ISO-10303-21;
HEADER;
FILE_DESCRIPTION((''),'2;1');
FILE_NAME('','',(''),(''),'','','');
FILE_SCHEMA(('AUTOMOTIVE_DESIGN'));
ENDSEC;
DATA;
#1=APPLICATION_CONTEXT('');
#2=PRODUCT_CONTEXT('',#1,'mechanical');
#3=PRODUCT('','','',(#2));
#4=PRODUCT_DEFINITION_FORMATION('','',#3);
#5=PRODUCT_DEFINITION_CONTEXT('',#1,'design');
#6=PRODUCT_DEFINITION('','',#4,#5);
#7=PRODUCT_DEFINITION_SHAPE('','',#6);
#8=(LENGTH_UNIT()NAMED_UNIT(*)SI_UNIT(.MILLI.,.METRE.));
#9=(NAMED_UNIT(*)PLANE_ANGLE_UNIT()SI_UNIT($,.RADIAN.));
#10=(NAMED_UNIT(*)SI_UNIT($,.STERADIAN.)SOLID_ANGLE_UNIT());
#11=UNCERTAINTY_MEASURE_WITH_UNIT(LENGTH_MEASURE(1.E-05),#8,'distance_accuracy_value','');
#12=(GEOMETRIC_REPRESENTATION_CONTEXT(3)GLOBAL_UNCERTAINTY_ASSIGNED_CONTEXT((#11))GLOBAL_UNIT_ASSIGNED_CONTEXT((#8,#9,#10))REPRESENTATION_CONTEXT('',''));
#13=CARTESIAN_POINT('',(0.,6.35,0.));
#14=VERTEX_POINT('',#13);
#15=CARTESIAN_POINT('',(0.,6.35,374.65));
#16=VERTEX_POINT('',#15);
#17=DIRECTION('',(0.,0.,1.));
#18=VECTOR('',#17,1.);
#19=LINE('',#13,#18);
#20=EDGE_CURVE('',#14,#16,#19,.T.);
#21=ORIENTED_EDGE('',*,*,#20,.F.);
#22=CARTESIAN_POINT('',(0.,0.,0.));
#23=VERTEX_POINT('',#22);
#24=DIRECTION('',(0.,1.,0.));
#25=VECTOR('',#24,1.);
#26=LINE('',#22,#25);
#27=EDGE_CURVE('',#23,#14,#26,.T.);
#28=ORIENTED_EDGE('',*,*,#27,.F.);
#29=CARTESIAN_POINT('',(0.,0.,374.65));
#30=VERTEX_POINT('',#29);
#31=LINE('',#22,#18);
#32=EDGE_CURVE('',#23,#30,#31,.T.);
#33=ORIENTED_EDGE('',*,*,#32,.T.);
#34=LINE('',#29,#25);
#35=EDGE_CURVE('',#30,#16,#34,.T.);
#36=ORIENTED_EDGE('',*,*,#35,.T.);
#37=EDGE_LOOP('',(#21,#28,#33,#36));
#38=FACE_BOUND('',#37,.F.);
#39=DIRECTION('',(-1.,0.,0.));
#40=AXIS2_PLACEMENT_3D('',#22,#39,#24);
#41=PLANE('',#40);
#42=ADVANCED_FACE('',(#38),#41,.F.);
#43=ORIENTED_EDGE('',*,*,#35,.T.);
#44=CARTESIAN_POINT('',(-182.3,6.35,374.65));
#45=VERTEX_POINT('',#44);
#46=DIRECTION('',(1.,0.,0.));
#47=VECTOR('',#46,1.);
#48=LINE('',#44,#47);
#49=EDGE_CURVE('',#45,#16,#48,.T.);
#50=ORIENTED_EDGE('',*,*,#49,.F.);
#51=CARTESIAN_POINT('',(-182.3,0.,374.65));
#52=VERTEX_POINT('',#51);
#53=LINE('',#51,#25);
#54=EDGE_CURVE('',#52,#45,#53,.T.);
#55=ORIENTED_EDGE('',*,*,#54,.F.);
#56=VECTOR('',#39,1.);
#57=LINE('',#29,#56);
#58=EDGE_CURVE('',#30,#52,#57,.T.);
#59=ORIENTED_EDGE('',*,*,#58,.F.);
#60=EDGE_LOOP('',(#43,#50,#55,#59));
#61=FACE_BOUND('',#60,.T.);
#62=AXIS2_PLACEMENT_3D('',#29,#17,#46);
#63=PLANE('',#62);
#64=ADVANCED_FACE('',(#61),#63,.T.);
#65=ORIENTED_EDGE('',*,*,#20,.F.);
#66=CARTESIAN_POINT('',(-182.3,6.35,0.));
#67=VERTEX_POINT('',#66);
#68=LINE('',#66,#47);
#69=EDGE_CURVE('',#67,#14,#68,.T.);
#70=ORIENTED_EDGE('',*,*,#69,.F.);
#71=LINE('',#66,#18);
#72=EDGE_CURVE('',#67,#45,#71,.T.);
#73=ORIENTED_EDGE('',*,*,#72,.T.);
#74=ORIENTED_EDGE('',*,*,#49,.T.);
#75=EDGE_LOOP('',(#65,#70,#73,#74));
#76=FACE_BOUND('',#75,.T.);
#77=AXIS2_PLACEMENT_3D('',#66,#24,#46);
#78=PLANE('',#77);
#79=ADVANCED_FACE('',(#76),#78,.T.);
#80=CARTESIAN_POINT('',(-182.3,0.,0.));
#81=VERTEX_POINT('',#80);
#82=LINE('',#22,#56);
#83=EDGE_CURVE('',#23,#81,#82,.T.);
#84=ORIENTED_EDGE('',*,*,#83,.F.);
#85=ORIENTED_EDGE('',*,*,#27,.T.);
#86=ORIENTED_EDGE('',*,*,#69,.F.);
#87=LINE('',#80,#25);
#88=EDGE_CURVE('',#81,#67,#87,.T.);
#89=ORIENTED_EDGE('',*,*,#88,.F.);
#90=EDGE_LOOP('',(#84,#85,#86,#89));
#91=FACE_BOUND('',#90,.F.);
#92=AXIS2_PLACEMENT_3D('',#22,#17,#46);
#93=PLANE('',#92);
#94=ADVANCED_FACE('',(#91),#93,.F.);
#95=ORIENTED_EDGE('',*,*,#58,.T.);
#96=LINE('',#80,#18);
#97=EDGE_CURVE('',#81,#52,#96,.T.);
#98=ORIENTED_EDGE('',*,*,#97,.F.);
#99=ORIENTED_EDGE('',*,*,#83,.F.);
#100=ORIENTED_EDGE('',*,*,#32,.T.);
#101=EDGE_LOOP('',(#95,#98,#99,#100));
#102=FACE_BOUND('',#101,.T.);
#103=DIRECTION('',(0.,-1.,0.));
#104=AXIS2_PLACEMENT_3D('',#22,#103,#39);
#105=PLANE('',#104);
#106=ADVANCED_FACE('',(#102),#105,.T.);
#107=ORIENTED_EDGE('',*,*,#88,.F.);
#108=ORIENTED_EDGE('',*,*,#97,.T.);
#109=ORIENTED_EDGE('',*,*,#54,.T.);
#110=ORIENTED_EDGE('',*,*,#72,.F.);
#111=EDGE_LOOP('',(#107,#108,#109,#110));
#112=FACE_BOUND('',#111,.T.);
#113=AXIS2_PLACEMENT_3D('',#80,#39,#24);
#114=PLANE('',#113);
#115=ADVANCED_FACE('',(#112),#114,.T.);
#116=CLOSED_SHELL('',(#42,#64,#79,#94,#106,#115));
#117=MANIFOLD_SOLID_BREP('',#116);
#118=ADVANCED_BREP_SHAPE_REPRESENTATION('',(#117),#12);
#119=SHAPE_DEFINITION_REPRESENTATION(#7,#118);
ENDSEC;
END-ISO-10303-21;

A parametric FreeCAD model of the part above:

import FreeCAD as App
import Part
import Sketcher
from FreeCAD import Vector
Q = App.Units.Quantity


def add_polygon(sketch, points):
    """Adds a closed chain of lines whose ends are joined by coincident constraints."""
    first, n = sketch.GeometryCount, len(points)
    for a, b in zip(points, points[1:] + points[:1]):
        sketch.addGeometry(Part.LineSegment(App.Vector(*a, 0), App.Vector(*b, 0)), False)
    for i in range(n):
        sketch.addConstraint(Sketcher.Constraint("Coincident", first + i, 2, first + (i + 1) % n, 1))

doc = App.newDocument("Part")
body = doc.addObject("PartDesign::Body", "Body")

sketch1 = body.newObject("Sketcher::SketchObject", "Sketch")
sketch1.AttachmentSupport = (doc.getObject("XY_Plane"), [""])
sketch1.MapMode = "FlatFace"
add_polygon(sketch1, [(0, 6), (-182, 6), (-182, 0), (0, 0)])
sketch1.addConstraint(Sketcher.Constraint("Horizontal", 0))
sketch1.addConstraint(Sketcher.Constraint("Vertical", 1))
sketch1.addConstraint(Sketcher.Constraint("Horizontal", 2))
sketch1.addConstraint(Sketcher.Constraint("Vertical", 3))
sketch1.addConstraint(Sketcher.Constraint("Coincident", 2, 2, -1, 1))
sketch1.addConstraint(Sketcher.Constraint("DistanceY", 1, 2, 1, 1, Q("0.25 in")))
sketch1.addConstraint(Sketcher.Constraint("DistanceX", 0, 2, 0, 1, 182.3))
pad1 = body.newObject("PartDesign::Pad", "Pad")
pad1.Profile = sketch1
pad1.Length = Q("14.75 in")

doc.recompute()
